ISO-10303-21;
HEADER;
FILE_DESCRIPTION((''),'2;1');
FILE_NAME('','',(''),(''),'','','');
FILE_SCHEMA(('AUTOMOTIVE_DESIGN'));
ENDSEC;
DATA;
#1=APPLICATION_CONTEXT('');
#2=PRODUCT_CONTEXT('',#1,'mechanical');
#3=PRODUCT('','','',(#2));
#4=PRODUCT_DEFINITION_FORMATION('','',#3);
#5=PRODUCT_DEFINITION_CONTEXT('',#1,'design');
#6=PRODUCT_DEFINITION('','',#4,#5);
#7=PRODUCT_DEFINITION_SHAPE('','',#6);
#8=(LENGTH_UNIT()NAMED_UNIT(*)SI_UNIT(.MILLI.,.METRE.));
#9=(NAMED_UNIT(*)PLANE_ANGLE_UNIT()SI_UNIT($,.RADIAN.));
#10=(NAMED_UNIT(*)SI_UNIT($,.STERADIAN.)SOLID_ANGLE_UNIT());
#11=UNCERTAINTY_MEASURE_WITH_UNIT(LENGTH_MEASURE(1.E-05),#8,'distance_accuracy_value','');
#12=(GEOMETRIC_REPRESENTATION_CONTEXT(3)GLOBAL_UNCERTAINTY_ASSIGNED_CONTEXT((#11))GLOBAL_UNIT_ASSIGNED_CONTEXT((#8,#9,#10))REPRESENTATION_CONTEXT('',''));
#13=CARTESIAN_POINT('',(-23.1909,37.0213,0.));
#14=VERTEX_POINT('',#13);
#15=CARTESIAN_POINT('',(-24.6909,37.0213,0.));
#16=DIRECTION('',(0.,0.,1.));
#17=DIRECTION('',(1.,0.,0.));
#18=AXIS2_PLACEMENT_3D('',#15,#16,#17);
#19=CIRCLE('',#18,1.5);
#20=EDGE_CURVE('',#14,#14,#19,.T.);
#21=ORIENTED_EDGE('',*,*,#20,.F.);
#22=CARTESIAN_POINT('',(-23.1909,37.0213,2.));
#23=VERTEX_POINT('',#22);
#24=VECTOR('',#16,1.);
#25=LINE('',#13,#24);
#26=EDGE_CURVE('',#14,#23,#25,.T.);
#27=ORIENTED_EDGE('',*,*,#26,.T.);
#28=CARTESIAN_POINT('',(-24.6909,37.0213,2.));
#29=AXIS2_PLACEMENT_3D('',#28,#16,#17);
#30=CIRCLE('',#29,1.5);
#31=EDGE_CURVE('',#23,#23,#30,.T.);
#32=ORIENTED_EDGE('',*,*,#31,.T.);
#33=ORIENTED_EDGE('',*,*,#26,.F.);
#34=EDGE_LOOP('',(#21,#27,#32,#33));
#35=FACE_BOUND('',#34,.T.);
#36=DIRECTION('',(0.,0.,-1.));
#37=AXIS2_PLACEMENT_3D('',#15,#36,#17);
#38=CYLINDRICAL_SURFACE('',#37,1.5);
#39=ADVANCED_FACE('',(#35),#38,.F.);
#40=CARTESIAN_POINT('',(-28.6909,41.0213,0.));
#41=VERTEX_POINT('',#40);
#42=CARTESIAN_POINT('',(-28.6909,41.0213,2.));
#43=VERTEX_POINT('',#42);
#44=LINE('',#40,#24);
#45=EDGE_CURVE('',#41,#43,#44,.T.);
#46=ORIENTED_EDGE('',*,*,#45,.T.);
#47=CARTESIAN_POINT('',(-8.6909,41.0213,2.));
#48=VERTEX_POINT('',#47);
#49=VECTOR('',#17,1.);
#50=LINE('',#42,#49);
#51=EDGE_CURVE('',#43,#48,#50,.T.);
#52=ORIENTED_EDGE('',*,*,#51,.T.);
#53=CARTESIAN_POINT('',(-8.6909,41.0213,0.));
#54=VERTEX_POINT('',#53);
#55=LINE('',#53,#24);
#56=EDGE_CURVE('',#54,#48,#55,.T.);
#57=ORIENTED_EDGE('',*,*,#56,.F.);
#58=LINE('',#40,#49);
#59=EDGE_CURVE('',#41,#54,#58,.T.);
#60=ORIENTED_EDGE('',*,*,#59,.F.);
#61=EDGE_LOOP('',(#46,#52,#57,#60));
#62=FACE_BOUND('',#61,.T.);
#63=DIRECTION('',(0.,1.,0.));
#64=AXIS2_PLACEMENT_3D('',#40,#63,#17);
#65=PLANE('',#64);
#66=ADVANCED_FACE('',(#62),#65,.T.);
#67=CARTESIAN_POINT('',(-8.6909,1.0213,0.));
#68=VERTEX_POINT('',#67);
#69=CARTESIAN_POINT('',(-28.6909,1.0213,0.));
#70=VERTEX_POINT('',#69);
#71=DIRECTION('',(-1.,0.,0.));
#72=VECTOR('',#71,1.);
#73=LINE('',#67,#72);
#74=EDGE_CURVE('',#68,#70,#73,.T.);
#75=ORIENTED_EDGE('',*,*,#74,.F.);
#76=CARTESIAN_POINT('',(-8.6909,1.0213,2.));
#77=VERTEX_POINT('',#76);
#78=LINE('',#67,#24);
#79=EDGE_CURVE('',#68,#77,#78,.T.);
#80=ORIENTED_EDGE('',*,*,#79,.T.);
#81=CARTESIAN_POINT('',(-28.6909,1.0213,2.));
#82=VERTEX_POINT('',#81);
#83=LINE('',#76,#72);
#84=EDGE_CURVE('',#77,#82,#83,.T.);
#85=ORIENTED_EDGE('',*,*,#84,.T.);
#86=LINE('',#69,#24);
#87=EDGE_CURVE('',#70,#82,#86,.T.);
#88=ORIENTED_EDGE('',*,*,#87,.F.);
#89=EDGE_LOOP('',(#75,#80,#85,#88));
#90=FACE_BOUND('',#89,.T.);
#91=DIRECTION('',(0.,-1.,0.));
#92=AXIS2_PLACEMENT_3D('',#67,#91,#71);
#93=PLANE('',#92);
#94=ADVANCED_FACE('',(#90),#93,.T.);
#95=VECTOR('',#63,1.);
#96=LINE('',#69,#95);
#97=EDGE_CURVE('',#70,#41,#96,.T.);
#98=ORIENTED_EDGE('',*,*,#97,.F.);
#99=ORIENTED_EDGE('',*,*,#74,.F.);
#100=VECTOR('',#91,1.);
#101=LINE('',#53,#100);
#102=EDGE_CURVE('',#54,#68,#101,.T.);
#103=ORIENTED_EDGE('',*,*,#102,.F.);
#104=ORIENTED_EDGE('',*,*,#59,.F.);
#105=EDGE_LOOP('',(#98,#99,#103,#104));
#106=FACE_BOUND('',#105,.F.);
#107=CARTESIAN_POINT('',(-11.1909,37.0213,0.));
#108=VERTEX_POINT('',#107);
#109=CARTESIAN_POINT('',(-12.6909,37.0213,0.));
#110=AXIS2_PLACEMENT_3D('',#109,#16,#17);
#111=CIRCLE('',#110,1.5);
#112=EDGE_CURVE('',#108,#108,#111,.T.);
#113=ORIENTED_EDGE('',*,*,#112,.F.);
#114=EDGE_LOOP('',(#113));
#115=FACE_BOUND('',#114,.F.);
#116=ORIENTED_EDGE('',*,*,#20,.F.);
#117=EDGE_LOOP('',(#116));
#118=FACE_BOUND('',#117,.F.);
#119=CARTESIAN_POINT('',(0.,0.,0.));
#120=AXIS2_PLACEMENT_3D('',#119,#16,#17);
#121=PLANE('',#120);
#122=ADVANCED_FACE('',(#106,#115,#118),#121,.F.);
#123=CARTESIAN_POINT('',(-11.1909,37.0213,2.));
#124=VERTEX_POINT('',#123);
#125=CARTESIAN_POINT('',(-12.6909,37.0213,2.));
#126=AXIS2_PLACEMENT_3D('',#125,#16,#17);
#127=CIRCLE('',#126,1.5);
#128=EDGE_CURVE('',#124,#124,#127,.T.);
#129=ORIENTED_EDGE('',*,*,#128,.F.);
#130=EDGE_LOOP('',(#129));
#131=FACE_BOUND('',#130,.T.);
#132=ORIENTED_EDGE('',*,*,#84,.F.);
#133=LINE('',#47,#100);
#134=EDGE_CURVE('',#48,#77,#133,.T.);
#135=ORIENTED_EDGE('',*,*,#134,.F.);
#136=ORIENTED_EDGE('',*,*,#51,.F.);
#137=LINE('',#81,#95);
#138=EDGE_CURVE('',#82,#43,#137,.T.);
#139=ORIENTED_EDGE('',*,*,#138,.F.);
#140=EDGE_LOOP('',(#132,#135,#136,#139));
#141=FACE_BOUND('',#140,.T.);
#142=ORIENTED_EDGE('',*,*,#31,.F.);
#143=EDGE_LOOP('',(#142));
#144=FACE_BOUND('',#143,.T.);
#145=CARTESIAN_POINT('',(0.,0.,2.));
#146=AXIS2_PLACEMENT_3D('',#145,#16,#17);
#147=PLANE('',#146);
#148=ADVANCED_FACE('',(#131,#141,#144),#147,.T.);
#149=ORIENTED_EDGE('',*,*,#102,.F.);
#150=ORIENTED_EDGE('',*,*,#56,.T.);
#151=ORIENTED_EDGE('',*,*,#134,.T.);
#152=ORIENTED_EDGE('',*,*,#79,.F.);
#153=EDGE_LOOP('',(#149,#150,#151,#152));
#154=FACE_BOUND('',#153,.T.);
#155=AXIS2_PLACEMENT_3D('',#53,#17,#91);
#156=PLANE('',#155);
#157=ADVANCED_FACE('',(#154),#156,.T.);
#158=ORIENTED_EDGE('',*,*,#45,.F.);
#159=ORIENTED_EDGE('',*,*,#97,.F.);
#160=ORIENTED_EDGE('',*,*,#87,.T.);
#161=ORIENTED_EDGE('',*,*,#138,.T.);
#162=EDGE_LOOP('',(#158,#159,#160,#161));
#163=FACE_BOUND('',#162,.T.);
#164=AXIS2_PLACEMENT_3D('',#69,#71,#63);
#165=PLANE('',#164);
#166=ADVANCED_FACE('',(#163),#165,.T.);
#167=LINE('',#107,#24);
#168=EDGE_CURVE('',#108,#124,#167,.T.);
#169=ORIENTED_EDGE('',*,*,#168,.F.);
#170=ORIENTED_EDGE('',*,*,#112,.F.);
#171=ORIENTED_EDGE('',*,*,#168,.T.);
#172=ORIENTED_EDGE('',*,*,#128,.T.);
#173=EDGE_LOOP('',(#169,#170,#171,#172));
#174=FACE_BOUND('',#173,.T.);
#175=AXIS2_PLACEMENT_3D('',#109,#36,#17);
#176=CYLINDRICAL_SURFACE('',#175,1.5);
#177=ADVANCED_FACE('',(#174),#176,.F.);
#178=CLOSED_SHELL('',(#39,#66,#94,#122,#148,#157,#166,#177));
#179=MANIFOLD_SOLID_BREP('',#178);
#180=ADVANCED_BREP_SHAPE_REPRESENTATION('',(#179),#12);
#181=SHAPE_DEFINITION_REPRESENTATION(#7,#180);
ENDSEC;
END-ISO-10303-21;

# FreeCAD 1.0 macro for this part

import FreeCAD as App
import Part
import Sketcher
from FreeCAD import Vector
Q = App.Units.Quantity

doc = App.newDocument("Part")
params = doc.addObject("Spreadsheet::Sheet", "Params")
for row, (alias, value) in enumerate([
    ("sketch1_diameter", "3 mm"),
    ("sketch1_width", "20 mm"),
    ("sketch1_height", "40 mm"),
    ("pad1_length", "2 mm"),
], start=1):
    params.set(f"A{row}", alias)
    params.set(f"B{row}", "=" + value)
    params.setAlias(f"B{row}", alias)

body = doc.addObject("PartDesign::Body", "Body")

# Sketch on XY plane
sketch1 = doc.addObject("Sketcher::SketchObject", "Sketch")
body.addObject(sketch1)
sketch1.AttachmentSupport = (doc.XY_Plane, [""])
sketch1.MapMode = "FlatFace"
sketch1.addGeometry(Part.LineSegment(Vector(-8.7, 41, 0), Vector(-28.7, 41, 0)), False)
sketch1.addGeometry(Part.LineSegment(Vector(-28.7, 41, 0), Vector(-28.7, 1, 0)), False)
sketch1.addGeometry(Part.LineSegment(Vector(-28.7, 1, 0), Vector(-8.7, 1, 0)), False)
sketch1.addGeometry(Part.LineSegment(Vector(-8.7, 1, 0), Vector(-8.7, 41, 0)), False)
sketch1.addGeometry(Part.Circle(Vector(-24.7, 37, 0), Vector(0, 0, 1), 1.5), False)
sketch1.addGeometry(Part.Circle(Vector(-12.7, 37, 0), Vector(0, 0, 1), 1.5), False)
sketch1.addConstraint(Sketcher.Constraint("Coincident", 0, 2, 1, 1))
sketch1.addConstraint(Sketcher.Constraint("Coincident", 1, 2, 2, 1))
sketch1.addConstraint(Sketcher.Constraint("Coincident", 2, 2, 3, 1))
sketch1.addConstraint(Sketcher.Constraint("Coincident", 3, 2, 0, 1))
sketch1.addConstraint(Sketcher.Constraint("Horizontal", 0))
sketch1.addConstraint(Sketcher.Constraint("Vertical", 1))
sketch1.addConstraint(Sketcher.Constraint("Horizontal", 2))
sketch1.addConstraint(Sketcher.Constraint("Vertical", 3))
sketch1.addConstraint(Sketcher.Constraint("Equal", 4, 5))
sketch1.addConstraint(Sketcher.Constraint("Horizontal", 4, 3, 5, 3))
sketch1.addConstraint(Sketcher.Constraint("Diameter", 4, Q("3 mm")))
sketch1.addConstraint(Sketcher.Constraint("DistanceX", 0, 2, 0, 1, Q("20 mm")))
sketch1.addConstraint(Sketcher.Constraint("DistanceY", 1, 2, 1, 1, Q("40 mm")))
sketch1.addConstraint(Sketcher.Constraint("DistanceX", 0, 2, 4, 3, Q("4 mm")))
sketch1.addConstraint(Sketcher.Constraint("DistanceY", 4, 3, 0, 2, Q("4 mm")))
sketch1.addConstraint(Sketcher.Constraint("DistanceX", 5, 3, 2, 2, Q("4 mm")))
sketch1.addConstraint(Sketcher.Constraint("DistanceX", 4, 3, -1, 1, Q("24.691 mm")))
sketch1.addConstraint(Sketcher.Constraint("DistanceY", -1, 1, 4, 3, Q("37.0213 mm")))
sketch1.setExpression("Constraints[10]", "Params.sketch1_diameter")
sketch1.setExpression("Constraints[11]", "Params.sketch1_width")
sketch1.setExpression("Constraints[12]", "Params.sketch1_height")
pad1 = doc.addObject("PartDesign::Pad", "Pad")
body.addObject(pad1)
pad1.Profile = sketch1
pad1.setExpression("Length", "Params.pad1_length")

doc.recompute()
